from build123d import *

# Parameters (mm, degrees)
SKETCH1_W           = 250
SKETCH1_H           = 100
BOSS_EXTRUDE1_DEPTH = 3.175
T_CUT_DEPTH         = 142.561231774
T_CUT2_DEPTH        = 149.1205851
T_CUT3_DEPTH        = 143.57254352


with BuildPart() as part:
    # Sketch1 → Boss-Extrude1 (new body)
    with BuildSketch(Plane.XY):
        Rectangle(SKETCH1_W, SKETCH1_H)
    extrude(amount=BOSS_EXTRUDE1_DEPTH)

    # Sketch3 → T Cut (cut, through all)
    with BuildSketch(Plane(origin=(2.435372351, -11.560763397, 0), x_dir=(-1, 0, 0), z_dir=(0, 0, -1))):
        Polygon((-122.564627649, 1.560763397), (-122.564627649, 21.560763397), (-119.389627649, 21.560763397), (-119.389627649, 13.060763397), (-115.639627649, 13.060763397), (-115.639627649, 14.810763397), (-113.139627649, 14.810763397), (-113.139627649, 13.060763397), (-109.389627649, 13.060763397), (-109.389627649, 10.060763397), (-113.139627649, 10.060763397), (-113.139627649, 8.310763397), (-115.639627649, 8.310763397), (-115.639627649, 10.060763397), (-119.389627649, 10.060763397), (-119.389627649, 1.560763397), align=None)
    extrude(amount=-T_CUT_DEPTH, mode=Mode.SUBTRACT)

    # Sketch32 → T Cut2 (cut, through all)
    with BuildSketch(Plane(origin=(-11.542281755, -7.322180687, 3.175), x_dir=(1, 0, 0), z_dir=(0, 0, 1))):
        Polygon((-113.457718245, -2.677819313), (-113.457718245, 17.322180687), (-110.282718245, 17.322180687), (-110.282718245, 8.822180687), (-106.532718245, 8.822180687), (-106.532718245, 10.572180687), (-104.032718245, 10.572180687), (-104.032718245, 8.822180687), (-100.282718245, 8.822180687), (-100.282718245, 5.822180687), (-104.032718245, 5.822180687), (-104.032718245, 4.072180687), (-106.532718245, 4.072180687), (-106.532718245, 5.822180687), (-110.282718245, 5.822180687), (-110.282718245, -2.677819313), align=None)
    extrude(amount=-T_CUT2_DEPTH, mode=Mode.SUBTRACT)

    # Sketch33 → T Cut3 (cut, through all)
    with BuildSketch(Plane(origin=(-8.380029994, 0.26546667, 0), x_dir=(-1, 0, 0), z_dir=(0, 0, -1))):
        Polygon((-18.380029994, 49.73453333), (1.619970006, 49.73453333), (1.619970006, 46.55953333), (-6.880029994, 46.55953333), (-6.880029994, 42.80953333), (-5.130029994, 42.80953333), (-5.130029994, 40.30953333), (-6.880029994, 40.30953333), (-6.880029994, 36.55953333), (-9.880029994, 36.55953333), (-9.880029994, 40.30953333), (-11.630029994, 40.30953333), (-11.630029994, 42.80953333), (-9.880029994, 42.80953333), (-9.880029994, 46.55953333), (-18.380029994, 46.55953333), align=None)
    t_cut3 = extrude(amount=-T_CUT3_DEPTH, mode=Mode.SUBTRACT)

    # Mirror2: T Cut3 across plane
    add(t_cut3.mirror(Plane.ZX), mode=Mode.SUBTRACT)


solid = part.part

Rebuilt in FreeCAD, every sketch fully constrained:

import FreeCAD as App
import Part
import Sketcher
from FreeCAD import Vector
Q = App.Units.Quantity


def add_polygon(sketch, points):
    """Adds a closed chain of lines whose ends are joined by coincident constraints."""
    first, n = sketch.GeometryCount, len(points)
    for a, b in zip(points, points[1:] + points[:1]):
        sketch.addGeometry(Part.LineSegment(App.Vector(*a, 0), App.Vector(*b, 0)), False)
    for i in range(n):
        sketch.addConstraint(Sketcher.Constraint("Coincident", first + i, 2, first + (i + 1) % n, 1))

doc = App.newDocument("Part")
params = doc.addObject("Spreadsheet::Sheet", "Params")
for row, (alias, value) in enumerate([
    ("sketch1_width", "250 mm"),
    ("sketch1_height", "100 mm"),
    ("pad1_length", "3.175 mm"),
    ("sketch2_height", "20 mm"),
    ("sketch2_height2", "3 mm"),
    ("sketch2_width", "2.5 mm"),
    ("sketch2_height3", "1.75 mm"),
    ("sketch3_height", "20 mm"),
    ("sketch3_height2", "3 mm"),
    ("sketch3_width", "2.5 mm"),
    ("sketch3_height3", "1.75 mm"),
    ("sketch4_width", "20 mm"),
    ("sketch4_width2", "3 mm"),
    ("sketch4_height", "2.5 mm"),
    ("sketch4_width3", "1.75 mm"),
], start=1):
    params.set(f"A{row}", alias)
    params.set(f"B{row}", "=" + value)
    params.setAlias(f"B{row}", alias)

body = doc.addObject("PartDesign::Body", "Body")

sketch1 = body.newObject("Sketcher::SketchObject", "Sketch")
sketch1.AttachmentSupport = (doc.getObject("XY_Plane"), [""])
sketch1.MapMode = "FlatFace"
add_polygon(sketch1, [(-125, 50), (-125, -50), (125, -50), (125, 50)])
sketch1.addConstraint(Sketcher.Constraint("Vertical", 0))
sketch1.addConstraint(Sketcher.Constraint("Horizontal", 1))
sketch1.addConstraint(Sketcher.Constraint("Vertical", 2))
sketch1.addConstraint(Sketcher.Constraint("Horizontal", 3))
sketch1.addConstraint(Sketcher.Constraint("Symmetric", 0, 2, 2, 2, -1, 1))
sketch1.addConstraint(Sketcher.Constraint("DistanceX", 1, 1, 1, 2, Q("250 mm")))
sketch1.addConstraint(Sketcher.Constraint("DistanceY", 0, 2, 0, 1, Q("100 mm")))
sketch1.setExpression("Constraints[9]", "Params.sketch1_width")
sketch1.setExpression("Constraints[10]", "Params.sketch1_height")
pad1 = body.newObject("PartDesign::Pad", "Pad")
pad1.Profile = sketch1
pad1.setExpression("Length", "Params.pad1_length")

sketch2 = body.newObject("Sketcher::SketchObject", "Sketch001")
sketch2.AttachmentSupport = (doc.getObject("XY_Plane"), [""])
sketch2.MapMode = "FlatFace"
add_polygon(sketch2, [(125, 10), (125, -10), (121.8, -10), (121.8, -1.5), (118.1, -1.5), (118.1, -3.2), (115.6, -3.2), (115.6, -1.5), (111.8, -1.5), (111.8, 1.5), (115.6, 1.5), (115.6, 3.2), (118.1, 3.2), (118.1, 1.5), (121.8, 1.5), (121.8, 10)])
sketch2.addConstraint(Sketcher.Constraint("Vertical", 0))
sketch2.addConstraint(Sketcher.Constraint("Horizontal", 1))
sketch2.addConstraint(Sketcher.Constraint("Vertical", 2))
sketch2.addConstraint(Sketcher.Constraint("Horizontal", 3))
sketch2.addConstraint(Sketcher.Constraint("Vertical", 4))
sketch2.addConstraint(Sketcher.Constraint("Horizontal", 5))
sketch2.addConstraint(Sketcher.Constraint("Vertical", 6))
sketch2.addConstraint(Sketcher.Constraint("Horizontal", 7))
sketch2.addConstraint(Sketcher.Constraint("Vertical", 8))
sketch2.addConstraint(Sketcher.Constraint("Horizontal", 9))
sketch2.addConstraint(Sketcher.Constraint("Vertical", 10))
sketch2.addConstraint(Sketcher.Constraint("Horizontal", 11))
sketch2.addConstraint(Sketcher.Constraint("Vertical", 12))
sketch2.addConstraint(Sketcher.Constraint("Horizontal", 13))
sketch2.addConstraint(Sketcher.Constraint("Vertical", 14))
sketch2.addConstraint(Sketcher.Constraint("Horizontal", 15))
sketch2.addConstraint(Sketcher.Constraint("Symmetric", 6, 2, 9, 2, -1))
sketch2.addConstraint(Sketcher.Constraint("Symmetric", 4, 2, 11, 2, -1))
sketch2.addConstraint(Sketcher.Constraint("Symmetric", 2, 2, 13, 2, -1))
sketch2.addConstraint(Sketcher.Constraint("Horizontal", 3, 2, 6, 2))
sketch2.addConstraint(Sketcher.Constraint("Equal", 3, 7))
sketch2.addConstraint(Sketcher.Constraint("Equal", 2, 14))
sketch2.addConstraint(Sketcher.Constraint("DistanceY", 0, 2, 0, 1, Q("20 mm")))
sketch2.addConstraint(Sketcher.Constraint("DistanceY", 8, 1, 8, 2, Q("3 mm")))
sketch2.addConstraint(Sketcher.Constraint("DistanceX", 5, 2, 5, 1, Q("2.5 mm")))
sketch2.addConstraint(Sketcher.Constraint("DistanceX", -1, 1, 0, 2, Q("125 mm")))
sketch2.addConstraint(Sketcher.Constraint("DistanceX", 7, 2, 2, 2, Q("10 mm")))
sketch2.addConstraint(Sketcher.Constraint("DistanceY", 4, 2, 4, 1, Q("1.75 mm")))
sketch2.addConstraint(Sketcher.Constraint("DistanceX", 1, 2, 1, 1, Q("3.175 mm")))
sketch2.setExpression("Constraints[38]", "Params.sketch2_height")
sketch2.setExpression("Constraints[39]", "Params.sketch2_height2")
sketch2.setExpression("Constraints[40]", "Params.sketch2_width")
sketch2.setExpression("Constraints[43]", "Params.sketch2_height3")
pocket1 = body.newObject("PartDesign::Pocket", "Pocket")
pocket1.Profile = sketch2
pocket1.Type = "ThroughAll"
pocket1.Reversed = True

sketch3 = body.newObject("Sketcher::SketchObject", "Sketch002")
sketch3.AttachmentSupport = (doc.getObject("XY_Plane"), [""])
sketch3.MapMode = "FlatFace"
sketch3.AttachmentOffset = App.Placement(Vector(0, 0, 3.175), App.Rotation())
add_polygon(sketch3, [(-125, 10), (-125, -10), (-121.8, -10), (-121.8, -1.5), (-118.1, -1.5), (-118.1, -3.2), (-115.6, -3.2), (-115.6, -1.5), (-111.8, -1.5), (-111.8, 1.5), (-115.6, 1.5), (-115.6, 3.2), (-118.1, 3.2), (-118.1, 1.5), (-121.8, 1.5), (-121.8, 10)])
sketch3.addConstraint(Sketcher.Constraint("Vertical", 0))
sketch3.addConstraint(Sketcher.Constraint("Horizontal", 1))
sketch3.addConstraint(Sketcher.Constraint("Vertical", 2))
sketch3.addConstraint(Sketcher.Constraint("Horizontal", 3))
sketch3.addConstraint(Sketcher.Constraint("Vertical", 4))
sketch3.addConstraint(Sketcher.Constraint("Horizontal", 5))
sketch3.addConstraint(Sketcher.Constraint("Vertical", 6))
sketch3.addConstraint(Sketcher.Constraint("Horizontal", 7))
sketch3.addConstraint(Sketcher.Constraint("Vertical", 8))
sketch3.addConstraint(Sketcher.Constraint("Horizontal", 9))
sketch3.addConstraint(Sketcher.Constraint("Vertical", 10))
sketch3.addConstraint(Sketcher.Constraint("Horizontal", 11))
sketch3.addConstraint(Sketcher.Constraint("Vertical", 12))
sketch3.addConstraint(Sketcher.Constraint("Horizontal", 13))
sketch3.addConstraint(Sketcher.Constraint("Vertical", 14))
sketch3.addConstraint(Sketcher.Constraint("Horizontal", 15))
sketch3.addConstraint(Sketcher.Constraint("Symmetric", 6, 2, 9, 2, -1))
sketch3.addConstraint(Sketcher.Constraint("Symmetric", 4, 2, 11, 2, -1))
sketch3.addConstraint(Sketcher.Constraint("Symmetric", 2, 2, 13, 2, -1))
sketch3.addConstraint(Sketcher.Constraint("Horizontal", 3, 2, 6, 2))
sketch3.addConstraint(Sketcher.Constraint("Equal", 3, 7))
sketch3.addConstraint(Sketcher.Constraint("Equal", 2, 14))
sketch3.addConstraint(Sketcher.Constraint("DistanceY", 0, 2, 0, 1, Q("20 mm")))
sketch3.addConstraint(Sketcher.Constraint("DistanceY", 8, 1, 8, 2, Q("3 mm")))
sketch3.addConstraint(Sketcher.Constraint("DistanceX", 5, 1, 5, 2, Q("2.5 mm")))
sketch3.addConstraint(Sketcher.Constraint("DistanceX", 0, 2, -1, 1, Q("125 mm")))
sketch3.addConstraint(Sketcher.Constraint("DistanceX", 2, 2, 7, 2, Q("10 mm")))
sketch3.addConstraint(Sketcher.Constraint("DistanceY", 4, 2, 4, 1, Q("1.75 mm")))
sketch3.addConstraint(Sketcher.Constraint("DistanceX", 1, 1, 1, 2, Q("3.175 mm")))
sketch3.setExpression("Constraints[38]", "Params.sketch3_height")
sketch3.setExpression("Constraints[39]", "Params.sketch3_height2")
sketch3.setExpression("Constraints[40]", "Params.sketch3_width")
sketch3.setExpression("Constraints[43]", "Params.sketch3_height3")
pocket2 = body.newObject("PartDesign::Pocket", "Pocket001")
pocket2.Profile = sketch3
pocket2.Type = "ThroughAll"

sketch4 = body.newObject("Sketcher::SketchObject", "Sketch003")
sketch4.AttachmentSupport = (doc.getObject("XY_Plane"), [""])
sketch4.MapMode = "FlatFace"
add_polygon(sketch4, [(-10, 50), (10, 50), (10, 46.8), (1.5, 46.8), (1.5, 43.1), (3.2, 43.1), (3.2, 40.6), (1.5, 40.6), (1.5, 36.8), (-1.5, 36.8), (-1.5, 40.6), (-3.2, 40.6), (-3.2, 43.1), (-1.5, 43.1), (-1.5, 46.8), (-10, 46.8)])
sketch4.addConstraint(Sketcher.Constraint("Horizontal", 0))
sketch4.addConstraint(Sketcher.Constraint("Vertical", 1))
sketch4.addConstraint(Sketcher.Constraint("Horizontal", 2))
sketch4.addConstraint(Sketcher.Constraint("Vertical", 3))
sketch4.addConstraint(Sketcher.Constraint("Horizontal", 4))
sketch4.addConstraint(Sketcher.Constraint("Vertical", 5))
sketch4.addConstraint(Sketcher.Constraint("Horizontal", 6))
sketch4.addConstraint(Sketcher.Constraint("Vertical", 7))
sketch4.addConstraint(Sketcher.Constraint("Horizontal", 8))
sketch4.addConstraint(Sketcher.Constraint("Vertical", 9))
sketch4.addConstraint(Sketcher.Constraint("Horizontal", 10))
sketch4.addConstraint(Sketcher.Constraint("Vertical", 11))
sketch4.addConstraint(Sketcher.Constraint("Horizontal", 12))
sketch4.addConstraint(Sketcher.Constraint("Vertical", 13))
sketch4.addConstraint(Sketcher.Constraint("Horizontal", 14))
sketch4.addConstraint(Sketcher.Constraint("Vertical", 15))
sketch4.addConstraint(Sketcher.Constraint("Symmetric", 6, 2, 9, 2, -2))
sketch4.addConstraint(Sketcher.Constraint("Symmetric", 4, 2, 11, 2, -2))
sketch4.addConstraint(Sketcher.Constraint("Symmetric", 2, 2, 13, 2, -2))
sketch4.addConstraint(Sketcher.Constraint("Vertical", 3, 2, 6, 2))
sketch4.addConstraint(Sketcher.Constraint("Equal", 2, 14))
sketch4.addConstraint(Sketcher.Constraint("Equal", 3, 7))
sketch4.addConstraint(Sketcher.Constraint("DistanceX", 0, 1, 0, 2, Q("20 mm")))
sketch4.addConstraint(Sketcher.Constraint("DistanceX", 8, 2, 8, 1, Q("3 mm")))
sketch4.addConstraint(Sketcher.Constraint("DistanceY", 5, 2, 5, 1, Q("2.5 mm")))
sketch4.addConstraint(Sketcher.Constraint("DistanceY", -1, 1, 0, 2, Q("50 mm")))
sketch4.addConstraint(Sketcher.Constraint("DistanceY", 7, 2, 2, 2, Q("10 mm")))
sketch4.addConstraint(Sketcher.Constraint("DistanceX", 4, 1, 4, 2, Q("1.75 mm")))
sketch4.addConstraint(Sketcher.Constraint("DistanceY", 1, 2, 1, 1, Q("3.175 mm")))
sketch4.setExpression("Constraints[38]", "Params.sketch4_width")
sketch4.setExpression("Constraints[39]", "Params.sketch4_width2")
sketch4.setExpression("Constraints[40]", "Params.sketch4_height")
sketch4.setExpression("Constraints[43]", "Params.sketch4_width3")
pocket3 = body.newObject("PartDesign::Pocket", "Pocket002")
pocket3.Profile = sketch4
pocket3.Type = "ThroughAll"
pocket3.Reversed = True
doc.recompute()

mirrored = body.newObject("PartDesign::Mirrored", "Mirrored")
mirrored.Originals = [pocket3]
mirrored.MirrorPlane = (doc.getObject("XZ_Plane"), [""])
body.Tip = mirrored

doc.recompute()
